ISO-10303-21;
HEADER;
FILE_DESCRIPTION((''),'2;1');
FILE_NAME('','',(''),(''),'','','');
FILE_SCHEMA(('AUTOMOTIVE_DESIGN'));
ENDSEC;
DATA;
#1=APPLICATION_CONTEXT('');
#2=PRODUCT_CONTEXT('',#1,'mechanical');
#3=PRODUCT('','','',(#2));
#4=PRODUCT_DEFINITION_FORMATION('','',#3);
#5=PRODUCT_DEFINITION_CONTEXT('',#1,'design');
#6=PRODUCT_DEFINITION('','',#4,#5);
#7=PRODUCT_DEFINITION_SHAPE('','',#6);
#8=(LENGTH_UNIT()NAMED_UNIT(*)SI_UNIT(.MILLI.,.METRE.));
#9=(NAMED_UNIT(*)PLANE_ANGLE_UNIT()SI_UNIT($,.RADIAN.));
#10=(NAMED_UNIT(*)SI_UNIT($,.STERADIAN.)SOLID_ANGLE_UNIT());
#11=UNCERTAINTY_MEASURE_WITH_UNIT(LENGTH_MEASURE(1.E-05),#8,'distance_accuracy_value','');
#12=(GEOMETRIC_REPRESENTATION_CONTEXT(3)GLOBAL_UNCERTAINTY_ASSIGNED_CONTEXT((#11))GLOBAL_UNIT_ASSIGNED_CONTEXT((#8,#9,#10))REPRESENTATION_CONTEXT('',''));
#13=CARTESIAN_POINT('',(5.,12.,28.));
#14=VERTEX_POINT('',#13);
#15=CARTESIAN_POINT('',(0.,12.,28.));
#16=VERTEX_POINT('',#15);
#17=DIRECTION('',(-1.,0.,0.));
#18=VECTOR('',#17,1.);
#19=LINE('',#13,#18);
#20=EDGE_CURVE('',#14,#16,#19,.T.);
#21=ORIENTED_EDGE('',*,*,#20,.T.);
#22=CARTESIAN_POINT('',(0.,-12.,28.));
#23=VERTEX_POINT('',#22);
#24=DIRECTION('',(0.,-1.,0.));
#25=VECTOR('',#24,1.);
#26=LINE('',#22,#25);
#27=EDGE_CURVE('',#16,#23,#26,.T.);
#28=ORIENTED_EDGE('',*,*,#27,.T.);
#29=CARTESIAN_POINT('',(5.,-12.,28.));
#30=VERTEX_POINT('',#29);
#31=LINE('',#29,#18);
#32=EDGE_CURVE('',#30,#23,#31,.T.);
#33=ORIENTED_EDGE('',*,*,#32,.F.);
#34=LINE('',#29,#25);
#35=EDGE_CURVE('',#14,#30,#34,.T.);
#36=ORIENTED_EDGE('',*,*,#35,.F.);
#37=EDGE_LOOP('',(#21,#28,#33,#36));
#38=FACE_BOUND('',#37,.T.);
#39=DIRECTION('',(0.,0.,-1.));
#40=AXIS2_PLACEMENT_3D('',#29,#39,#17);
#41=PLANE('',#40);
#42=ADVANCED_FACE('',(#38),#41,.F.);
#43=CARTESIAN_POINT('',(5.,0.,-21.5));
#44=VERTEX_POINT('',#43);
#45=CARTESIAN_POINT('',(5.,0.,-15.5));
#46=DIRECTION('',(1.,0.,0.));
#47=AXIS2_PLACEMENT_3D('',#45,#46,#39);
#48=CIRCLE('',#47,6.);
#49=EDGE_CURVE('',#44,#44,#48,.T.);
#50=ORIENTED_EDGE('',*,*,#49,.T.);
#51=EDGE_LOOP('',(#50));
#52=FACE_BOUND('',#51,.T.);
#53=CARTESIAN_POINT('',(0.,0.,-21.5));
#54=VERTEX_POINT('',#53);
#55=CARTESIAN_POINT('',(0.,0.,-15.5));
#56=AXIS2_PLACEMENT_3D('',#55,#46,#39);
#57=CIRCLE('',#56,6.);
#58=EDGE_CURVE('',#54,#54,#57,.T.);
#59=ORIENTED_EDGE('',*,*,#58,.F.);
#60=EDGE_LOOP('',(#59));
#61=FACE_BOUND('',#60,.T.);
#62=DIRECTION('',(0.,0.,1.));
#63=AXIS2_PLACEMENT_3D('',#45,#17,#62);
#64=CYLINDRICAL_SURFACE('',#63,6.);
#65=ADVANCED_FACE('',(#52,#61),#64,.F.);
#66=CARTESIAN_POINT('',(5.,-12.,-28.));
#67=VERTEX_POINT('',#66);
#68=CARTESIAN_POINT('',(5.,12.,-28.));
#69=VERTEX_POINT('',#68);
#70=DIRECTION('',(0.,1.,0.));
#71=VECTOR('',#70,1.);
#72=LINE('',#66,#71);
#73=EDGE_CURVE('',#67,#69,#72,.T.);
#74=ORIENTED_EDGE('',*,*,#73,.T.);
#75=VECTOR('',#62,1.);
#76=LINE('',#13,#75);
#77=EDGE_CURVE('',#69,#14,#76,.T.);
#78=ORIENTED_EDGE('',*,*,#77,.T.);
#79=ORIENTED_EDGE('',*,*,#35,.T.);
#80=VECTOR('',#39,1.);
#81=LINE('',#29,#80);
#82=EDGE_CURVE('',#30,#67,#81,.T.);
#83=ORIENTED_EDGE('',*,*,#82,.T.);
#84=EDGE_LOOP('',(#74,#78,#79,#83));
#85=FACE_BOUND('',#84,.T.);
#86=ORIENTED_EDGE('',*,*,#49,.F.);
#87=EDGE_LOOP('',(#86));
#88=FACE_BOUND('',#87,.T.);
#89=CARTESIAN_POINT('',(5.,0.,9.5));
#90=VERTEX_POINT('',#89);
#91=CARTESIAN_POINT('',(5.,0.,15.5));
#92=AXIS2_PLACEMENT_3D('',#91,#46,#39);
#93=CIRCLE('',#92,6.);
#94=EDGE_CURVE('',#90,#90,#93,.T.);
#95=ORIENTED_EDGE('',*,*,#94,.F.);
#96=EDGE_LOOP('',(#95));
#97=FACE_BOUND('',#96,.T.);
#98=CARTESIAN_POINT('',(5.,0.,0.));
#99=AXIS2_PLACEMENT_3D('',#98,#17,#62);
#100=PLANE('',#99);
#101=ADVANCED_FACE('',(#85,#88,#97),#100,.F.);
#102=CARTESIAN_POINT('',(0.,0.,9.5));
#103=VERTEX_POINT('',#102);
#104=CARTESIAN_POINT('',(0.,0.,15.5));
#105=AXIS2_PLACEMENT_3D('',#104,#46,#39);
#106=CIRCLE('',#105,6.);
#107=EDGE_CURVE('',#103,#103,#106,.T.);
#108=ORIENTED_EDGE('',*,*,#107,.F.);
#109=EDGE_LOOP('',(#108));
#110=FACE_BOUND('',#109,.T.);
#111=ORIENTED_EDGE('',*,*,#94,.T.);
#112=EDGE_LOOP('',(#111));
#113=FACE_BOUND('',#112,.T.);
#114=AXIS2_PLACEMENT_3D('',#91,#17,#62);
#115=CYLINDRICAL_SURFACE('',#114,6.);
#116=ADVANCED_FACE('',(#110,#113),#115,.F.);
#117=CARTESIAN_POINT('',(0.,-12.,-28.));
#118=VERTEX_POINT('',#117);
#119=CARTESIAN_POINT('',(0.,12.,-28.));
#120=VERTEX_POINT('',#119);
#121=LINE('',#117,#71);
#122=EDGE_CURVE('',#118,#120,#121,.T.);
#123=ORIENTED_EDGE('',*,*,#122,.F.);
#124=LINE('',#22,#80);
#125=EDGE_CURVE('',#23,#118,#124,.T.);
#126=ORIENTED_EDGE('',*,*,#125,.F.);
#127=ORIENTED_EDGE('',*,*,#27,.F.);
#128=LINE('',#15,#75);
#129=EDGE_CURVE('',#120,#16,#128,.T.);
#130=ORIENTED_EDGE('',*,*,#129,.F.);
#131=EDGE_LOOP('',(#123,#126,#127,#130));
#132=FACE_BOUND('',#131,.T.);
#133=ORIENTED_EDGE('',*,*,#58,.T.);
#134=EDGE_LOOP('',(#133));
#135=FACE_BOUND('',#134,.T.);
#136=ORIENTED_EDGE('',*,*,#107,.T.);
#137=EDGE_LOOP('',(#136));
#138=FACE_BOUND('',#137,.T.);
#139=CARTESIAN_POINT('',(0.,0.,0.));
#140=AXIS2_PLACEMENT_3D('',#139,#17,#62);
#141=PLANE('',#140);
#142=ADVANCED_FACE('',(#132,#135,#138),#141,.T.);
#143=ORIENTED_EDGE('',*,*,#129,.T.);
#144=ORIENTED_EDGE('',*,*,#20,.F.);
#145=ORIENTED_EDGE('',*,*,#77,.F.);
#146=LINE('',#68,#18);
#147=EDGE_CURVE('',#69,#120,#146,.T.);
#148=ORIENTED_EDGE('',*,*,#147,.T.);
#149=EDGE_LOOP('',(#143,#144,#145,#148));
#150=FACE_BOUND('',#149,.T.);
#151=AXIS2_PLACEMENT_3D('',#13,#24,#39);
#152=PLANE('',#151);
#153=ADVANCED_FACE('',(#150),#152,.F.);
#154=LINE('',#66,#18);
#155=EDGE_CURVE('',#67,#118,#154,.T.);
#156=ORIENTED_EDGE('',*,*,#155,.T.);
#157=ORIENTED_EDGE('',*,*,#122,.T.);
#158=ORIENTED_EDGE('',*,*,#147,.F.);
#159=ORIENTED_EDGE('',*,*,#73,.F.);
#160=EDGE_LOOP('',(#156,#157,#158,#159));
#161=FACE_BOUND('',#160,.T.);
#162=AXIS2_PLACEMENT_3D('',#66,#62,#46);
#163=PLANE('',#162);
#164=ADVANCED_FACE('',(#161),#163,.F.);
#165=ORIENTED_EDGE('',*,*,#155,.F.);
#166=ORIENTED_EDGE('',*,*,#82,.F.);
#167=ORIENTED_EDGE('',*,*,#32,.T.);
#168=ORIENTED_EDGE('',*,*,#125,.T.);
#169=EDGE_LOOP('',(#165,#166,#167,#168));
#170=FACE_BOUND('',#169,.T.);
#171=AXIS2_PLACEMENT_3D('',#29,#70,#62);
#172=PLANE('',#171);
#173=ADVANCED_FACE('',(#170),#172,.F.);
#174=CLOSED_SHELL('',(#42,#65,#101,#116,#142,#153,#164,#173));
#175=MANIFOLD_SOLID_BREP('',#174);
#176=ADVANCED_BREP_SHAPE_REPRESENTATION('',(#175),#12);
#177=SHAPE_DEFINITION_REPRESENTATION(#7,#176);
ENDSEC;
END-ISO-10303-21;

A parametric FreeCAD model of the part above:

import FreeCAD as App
import Part
import Sketcher

doc = App.newDocument("Part")
body = doc.addObject("PartDesign::Body", "Body")

# Sketch on YZ plane
sketch1 = doc.addObject("Sketcher::SketchObject", "Sketch")
body.addObject(sketch1)
sketch1.AttachmentSupport = (doc.YZ_Plane, [""])
sketch1.MapMode = "FlatFace"
sketch1.addGeometry(Part.LineSegment(App.Vector(12, 28, 0), App.Vector(-12, 28, 0)), False)
sketch1.addGeometry(Part.LineSegment(App.Vector(-12, 28, 0), App.Vector(-12, -28, 0)), False)
sketch1.addGeometry(Part.LineSegment(App.Vector(-12, -28, 0), App.Vector(12, -28, 0)), False)
sketch1.addGeometry(Part.LineSegment(App.Vector(12, -28, 0), App.Vector(12, 28, 0)), False)
sketch1.addGeometry(Part.Circle(App.Vector(0, 15.5, 0), App.Vector(0, 0, 1), 6), False)
sketch1.addGeometry(Part.Circle(App.Vector(0, -15.5, 0), App.Vector(0, 0, 1), 6), False)
sketch1.addConstraint(Sketcher.Constraint("Coincident", 0, 2, 1, 1))
sketch1.addConstraint(Sketcher.Constraint("Coincident", 1, 2, 2, 1))
sketch1.addConstraint(Sketcher.Constraint("Coincident", 2, 2, 3, 1))
sketch1.addConstraint(Sketcher.Constraint("Coincident", 3, 2, 0, 1))
sketch1.addConstraint(Sketcher.Constraint("Horizontal", 0))
sketch1.addConstraint(Sketcher.Constraint("Vertical", 1))
sketch1.addConstraint(Sketcher.Constraint("Horizontal", 2))
sketch1.addConstraint(Sketcher.Constraint("Vertical", 3))
sketch1.addConstraint(Sketcher.Constraint("Equal", 4, 5))
sketch1.addConstraint(Sketcher.Constraint("Symmetric", 4, 3, 5, 3, -1, 1))
sketch1.addConstraint(Sketcher.Constraint("Symmetric", 0, 2, 2, 2, -1, 1))
sketch1.addConstraint(Sketcher.Constraint("PointOnObject", 4, 3, -2))
sketch1.addConstraint(Sketcher.Constraint("Diameter", 4, 12.0))
sketch1.addConstraint(Sketcher.Constraint("DistanceX", 0, 2, 0, 1, 24.0))
sketch1.addConstraint(Sketcher.Constraint("DistanceY", 1, 2, 1, 1, 56.0))
sketch1.addConstraint(Sketcher.Constraint("DistanceY", 5, 3, 4, 3, 31.0))
pad1 = doc.addObject("PartDesign::Pad", "Pad")
body.addObject(pad1)
pad1.Profile = sketch1
pad1.Length = 5

doc.recompute()
